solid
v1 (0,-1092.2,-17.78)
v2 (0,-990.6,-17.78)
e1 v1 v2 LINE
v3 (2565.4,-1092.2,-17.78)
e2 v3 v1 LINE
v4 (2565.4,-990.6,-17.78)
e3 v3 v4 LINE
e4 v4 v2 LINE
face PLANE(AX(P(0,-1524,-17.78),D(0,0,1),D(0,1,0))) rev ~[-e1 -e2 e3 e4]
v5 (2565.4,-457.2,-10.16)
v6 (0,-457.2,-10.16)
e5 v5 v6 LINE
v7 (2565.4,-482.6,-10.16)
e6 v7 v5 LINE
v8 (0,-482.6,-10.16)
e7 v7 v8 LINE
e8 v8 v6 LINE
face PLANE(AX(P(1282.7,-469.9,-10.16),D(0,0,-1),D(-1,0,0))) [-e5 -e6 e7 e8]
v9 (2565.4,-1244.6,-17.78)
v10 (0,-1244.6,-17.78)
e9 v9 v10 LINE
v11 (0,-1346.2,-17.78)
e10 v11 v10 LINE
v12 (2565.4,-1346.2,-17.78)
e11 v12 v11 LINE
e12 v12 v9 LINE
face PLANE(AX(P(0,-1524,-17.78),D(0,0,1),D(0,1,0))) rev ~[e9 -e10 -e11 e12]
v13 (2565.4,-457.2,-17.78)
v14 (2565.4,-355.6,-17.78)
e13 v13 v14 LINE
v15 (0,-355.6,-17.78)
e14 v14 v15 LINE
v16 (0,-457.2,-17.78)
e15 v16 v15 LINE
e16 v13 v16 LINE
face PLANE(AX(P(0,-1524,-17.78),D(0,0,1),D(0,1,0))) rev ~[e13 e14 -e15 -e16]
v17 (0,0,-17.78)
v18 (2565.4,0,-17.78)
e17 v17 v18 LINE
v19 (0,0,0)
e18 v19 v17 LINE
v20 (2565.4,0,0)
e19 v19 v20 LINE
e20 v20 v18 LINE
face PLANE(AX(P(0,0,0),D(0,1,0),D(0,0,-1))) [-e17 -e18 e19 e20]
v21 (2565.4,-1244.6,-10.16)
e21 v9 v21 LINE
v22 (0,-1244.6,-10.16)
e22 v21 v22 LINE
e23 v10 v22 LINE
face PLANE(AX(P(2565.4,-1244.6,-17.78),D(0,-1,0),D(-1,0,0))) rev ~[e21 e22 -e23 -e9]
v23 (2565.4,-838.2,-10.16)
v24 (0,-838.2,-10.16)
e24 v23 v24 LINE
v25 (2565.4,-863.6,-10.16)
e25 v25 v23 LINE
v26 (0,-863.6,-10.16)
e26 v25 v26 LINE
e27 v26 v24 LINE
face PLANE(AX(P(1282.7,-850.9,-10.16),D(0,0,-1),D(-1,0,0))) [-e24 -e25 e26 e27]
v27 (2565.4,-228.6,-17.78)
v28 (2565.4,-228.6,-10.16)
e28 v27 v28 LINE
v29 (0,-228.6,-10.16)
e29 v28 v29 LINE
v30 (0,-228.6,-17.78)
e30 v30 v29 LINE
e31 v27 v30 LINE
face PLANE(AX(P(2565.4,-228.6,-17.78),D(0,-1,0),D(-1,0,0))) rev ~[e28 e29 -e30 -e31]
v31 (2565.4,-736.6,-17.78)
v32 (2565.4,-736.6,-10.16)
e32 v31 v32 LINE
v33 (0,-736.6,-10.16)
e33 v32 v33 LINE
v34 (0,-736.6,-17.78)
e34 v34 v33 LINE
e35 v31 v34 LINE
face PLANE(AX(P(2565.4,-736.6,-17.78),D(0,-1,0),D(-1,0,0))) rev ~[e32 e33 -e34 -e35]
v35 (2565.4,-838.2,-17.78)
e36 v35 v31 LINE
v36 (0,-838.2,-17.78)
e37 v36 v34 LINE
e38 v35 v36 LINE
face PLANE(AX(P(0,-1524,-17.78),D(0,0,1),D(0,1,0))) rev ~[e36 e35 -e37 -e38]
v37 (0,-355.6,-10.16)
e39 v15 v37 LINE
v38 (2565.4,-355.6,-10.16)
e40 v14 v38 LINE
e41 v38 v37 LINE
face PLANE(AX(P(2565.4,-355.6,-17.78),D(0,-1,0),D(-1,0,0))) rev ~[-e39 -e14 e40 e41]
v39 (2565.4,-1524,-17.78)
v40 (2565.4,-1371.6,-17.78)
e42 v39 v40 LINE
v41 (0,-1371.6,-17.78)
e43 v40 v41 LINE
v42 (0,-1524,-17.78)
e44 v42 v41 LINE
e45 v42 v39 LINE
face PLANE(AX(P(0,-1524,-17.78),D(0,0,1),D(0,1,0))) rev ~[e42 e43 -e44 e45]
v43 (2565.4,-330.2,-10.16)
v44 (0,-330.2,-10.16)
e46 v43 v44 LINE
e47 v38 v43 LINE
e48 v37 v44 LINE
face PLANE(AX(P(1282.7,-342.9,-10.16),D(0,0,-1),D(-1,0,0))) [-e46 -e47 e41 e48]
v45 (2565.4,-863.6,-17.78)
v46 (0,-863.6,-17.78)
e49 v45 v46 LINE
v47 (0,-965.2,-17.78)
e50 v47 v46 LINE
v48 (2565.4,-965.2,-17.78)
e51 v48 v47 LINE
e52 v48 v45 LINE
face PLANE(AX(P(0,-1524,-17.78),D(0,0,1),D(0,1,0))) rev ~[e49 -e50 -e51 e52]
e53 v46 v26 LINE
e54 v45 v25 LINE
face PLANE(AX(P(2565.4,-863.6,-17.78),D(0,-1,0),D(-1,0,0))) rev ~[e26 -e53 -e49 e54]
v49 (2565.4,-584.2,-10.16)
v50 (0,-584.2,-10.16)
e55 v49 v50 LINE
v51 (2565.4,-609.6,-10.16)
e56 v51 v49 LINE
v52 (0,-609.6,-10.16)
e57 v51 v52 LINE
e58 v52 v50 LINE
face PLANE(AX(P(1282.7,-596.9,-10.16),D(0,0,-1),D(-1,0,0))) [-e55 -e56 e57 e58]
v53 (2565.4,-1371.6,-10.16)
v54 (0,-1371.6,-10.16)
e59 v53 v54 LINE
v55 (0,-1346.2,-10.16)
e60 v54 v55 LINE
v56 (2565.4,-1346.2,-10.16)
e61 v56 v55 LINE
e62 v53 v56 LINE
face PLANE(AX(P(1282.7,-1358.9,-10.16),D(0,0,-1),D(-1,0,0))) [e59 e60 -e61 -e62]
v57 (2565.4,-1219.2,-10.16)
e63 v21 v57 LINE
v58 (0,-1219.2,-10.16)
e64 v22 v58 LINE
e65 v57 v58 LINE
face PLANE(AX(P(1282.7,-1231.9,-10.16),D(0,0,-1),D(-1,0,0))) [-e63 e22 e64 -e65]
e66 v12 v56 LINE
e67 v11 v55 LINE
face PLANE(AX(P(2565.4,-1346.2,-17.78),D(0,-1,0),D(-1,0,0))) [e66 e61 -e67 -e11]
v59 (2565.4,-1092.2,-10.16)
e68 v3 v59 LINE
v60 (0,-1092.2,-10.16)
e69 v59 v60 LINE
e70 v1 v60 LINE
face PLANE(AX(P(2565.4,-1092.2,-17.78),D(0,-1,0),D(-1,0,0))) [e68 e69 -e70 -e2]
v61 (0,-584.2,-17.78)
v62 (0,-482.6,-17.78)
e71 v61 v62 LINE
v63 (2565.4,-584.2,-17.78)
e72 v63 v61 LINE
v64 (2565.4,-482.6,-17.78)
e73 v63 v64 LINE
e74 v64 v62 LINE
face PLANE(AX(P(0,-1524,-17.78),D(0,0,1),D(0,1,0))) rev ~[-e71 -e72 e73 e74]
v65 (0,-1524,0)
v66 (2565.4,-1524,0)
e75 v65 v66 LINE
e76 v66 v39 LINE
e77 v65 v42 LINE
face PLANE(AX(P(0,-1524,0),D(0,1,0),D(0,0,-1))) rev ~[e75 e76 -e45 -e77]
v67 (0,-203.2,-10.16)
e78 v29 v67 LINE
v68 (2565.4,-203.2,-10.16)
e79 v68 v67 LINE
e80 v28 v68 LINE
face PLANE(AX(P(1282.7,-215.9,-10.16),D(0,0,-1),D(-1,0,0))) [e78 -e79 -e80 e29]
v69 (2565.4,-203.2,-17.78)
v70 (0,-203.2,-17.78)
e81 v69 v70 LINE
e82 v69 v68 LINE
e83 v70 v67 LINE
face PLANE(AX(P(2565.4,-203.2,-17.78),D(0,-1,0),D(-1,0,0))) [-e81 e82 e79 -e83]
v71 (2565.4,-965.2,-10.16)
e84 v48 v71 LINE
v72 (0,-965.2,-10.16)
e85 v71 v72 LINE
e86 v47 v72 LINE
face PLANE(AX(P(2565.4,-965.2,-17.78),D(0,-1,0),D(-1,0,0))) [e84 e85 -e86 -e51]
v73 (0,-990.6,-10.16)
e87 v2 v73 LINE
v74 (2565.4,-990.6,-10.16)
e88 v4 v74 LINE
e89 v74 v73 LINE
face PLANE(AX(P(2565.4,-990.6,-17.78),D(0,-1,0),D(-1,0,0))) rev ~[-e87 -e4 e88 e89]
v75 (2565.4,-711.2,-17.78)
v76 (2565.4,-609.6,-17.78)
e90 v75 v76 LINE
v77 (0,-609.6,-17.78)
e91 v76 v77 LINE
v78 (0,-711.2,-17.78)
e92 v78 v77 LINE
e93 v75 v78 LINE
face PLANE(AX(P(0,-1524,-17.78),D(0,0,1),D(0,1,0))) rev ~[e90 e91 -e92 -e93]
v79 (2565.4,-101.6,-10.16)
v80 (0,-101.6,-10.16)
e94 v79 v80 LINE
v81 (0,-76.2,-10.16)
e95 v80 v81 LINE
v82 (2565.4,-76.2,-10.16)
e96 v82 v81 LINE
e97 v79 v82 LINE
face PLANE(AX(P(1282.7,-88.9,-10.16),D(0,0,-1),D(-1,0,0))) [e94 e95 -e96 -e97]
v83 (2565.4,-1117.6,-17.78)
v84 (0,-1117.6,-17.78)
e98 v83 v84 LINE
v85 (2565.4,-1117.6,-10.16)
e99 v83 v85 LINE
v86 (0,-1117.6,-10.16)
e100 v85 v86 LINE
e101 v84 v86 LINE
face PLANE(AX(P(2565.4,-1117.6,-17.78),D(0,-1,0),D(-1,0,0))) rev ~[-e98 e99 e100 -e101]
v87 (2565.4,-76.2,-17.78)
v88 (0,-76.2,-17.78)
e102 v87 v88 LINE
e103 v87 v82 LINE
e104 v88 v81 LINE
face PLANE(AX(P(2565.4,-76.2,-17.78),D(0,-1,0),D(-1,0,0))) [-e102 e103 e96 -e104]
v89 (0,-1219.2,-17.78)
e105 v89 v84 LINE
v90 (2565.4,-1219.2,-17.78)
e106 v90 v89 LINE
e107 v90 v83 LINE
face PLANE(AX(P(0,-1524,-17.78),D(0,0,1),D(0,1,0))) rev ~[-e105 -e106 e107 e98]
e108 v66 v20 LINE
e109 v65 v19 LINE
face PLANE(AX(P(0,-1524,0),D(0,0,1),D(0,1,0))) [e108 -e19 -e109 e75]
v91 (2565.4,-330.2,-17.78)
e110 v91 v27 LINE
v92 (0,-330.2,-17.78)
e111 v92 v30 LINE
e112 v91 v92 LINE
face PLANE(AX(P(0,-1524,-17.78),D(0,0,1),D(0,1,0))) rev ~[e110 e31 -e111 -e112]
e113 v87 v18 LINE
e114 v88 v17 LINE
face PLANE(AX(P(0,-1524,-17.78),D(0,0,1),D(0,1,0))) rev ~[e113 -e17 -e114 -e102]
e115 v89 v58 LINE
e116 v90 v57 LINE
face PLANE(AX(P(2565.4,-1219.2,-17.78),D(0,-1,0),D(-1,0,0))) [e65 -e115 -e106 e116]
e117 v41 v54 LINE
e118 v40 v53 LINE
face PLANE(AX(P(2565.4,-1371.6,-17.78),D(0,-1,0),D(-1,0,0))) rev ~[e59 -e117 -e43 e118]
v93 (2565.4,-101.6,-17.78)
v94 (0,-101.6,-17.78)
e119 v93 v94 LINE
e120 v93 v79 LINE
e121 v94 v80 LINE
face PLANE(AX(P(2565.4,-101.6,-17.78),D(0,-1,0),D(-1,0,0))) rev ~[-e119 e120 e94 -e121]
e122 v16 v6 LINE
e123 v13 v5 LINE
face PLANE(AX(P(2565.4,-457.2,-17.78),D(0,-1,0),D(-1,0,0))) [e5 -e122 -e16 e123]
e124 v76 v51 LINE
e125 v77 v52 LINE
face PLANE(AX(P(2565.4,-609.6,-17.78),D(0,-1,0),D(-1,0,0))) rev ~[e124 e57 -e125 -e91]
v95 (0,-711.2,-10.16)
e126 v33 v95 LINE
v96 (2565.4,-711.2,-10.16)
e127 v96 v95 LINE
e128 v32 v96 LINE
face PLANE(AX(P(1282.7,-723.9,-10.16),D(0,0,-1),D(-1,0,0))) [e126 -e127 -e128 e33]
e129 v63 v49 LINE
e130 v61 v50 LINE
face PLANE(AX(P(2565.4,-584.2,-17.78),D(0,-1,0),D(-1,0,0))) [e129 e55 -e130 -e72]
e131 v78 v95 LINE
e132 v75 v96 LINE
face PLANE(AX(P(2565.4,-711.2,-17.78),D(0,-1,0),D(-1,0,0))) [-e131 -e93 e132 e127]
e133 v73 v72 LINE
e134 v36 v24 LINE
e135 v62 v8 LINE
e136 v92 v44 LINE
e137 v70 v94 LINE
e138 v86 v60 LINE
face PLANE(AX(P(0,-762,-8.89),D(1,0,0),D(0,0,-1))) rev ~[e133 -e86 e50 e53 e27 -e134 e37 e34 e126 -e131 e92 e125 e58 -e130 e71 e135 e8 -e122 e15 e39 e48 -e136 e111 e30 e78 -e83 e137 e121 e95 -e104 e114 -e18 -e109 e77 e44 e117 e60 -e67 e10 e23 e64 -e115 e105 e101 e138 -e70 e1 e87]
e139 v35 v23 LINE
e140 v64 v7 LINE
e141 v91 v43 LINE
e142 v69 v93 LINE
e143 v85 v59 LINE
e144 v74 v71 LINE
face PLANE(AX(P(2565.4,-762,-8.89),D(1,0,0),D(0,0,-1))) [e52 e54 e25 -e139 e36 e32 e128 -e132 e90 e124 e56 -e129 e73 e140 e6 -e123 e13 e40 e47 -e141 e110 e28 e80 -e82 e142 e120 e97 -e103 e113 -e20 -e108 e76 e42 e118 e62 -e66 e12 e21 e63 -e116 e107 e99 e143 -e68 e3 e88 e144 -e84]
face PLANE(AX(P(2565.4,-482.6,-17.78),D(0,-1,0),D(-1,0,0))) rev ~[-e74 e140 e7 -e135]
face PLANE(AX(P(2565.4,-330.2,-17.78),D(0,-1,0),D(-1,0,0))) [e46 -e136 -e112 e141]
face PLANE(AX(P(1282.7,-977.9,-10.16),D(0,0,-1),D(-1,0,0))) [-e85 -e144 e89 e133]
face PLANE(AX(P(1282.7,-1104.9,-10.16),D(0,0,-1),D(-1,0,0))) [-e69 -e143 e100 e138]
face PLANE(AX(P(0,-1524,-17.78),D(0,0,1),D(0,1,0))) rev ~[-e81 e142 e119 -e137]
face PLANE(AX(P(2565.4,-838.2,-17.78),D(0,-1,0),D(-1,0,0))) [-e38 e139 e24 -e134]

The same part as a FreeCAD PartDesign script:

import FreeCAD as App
import Part
import Sketcher
from FreeCAD import Vector
Q = App.Units.Quantity

doc = App.newDocument("Part")
body = doc.addObject("PartDesign::Body", "Body")

# Sketch on YZ plane
sketch1 = doc.addObject("Sketcher::SketchObject", "Sketch")
body.addObject(sketch1)
sketch1.AttachmentSupport = (doc.YZ_Plane, [""])
sketch1.MapMode = "FlatFace"
sketch1.addGeometry([
    Part.LineSegment(Vector(0, 0, 0), Vector(-1524, 0, 0)),
    Part.LineSegment(Vector(-1524, 0, 0), Vector(-1524, -18, 0)),
    Part.LineSegment(Vector(-1524, -18, 0), Vector(0, -18, 0)),
    Part.LineSegment(Vector(0, -18, 0), Vector(0, 0, 0)),
], False)
sketch1.addConstraint([
    Sketcher.Constraint("Coincident", 0, 2, 1, 1),
    Sketcher.Constraint("Coincident", 1, 2, 2, 1),
    Sketcher.Constraint("Coincident", 2, 2, 3, 1),
    Sketcher.Constraint("Coincident", 3, 2, 0, 1),
    Sketcher.Constraint("Horizontal", 0),
    Sketcher.Constraint("Vertical", 1),
    Sketcher.Constraint("Horizontal", 2),
    Sketcher.Constraint("Vertical", 3),
    Sketcher.Constraint("Coincident", 3, 2, -1, 1),
    Sketcher.Constraint("DistanceX", 0, 2, 0, 1, Q("60 in")),
    Sketcher.Constraint("DistanceY", 1, 2, 1, 1, Q("0.7 in")),
])
pad1 = doc.addObject("PartDesign::Pad", "Pad")
body.addObject(pad1)
pad1.Profile = sketch1
pad1.Length = Q("101 in")

# Sketch on XY plane
sketch2 = doc.addObject("Sketcher::SketchObject", "Sketch001")
body.addObject(sketch2)
sketch2.AttachmentSupport = (doc.XY_Plane, [""])
sketch2.MapMode = "FlatFace"
sketch2.AttachmentOffset = App.Placement(Vector(0, 0, -0.7 * 25.4), App.Rotation())
sketch2.addGeometry([
    Part.LineSegment(Vector(2565, -76, 0), Vector(2565, -102, 0)),  # 0
    Part.LineSegment(Vector(2565, -102, 0), Vector(0, -102, 0)),  # 1
    Part.LineSegment(Vector(0, -102, 0), Vector(0, -76, 0)),  # 2
    Part.LineSegment(Vector(0, -76, 0), Vector(2565, -76, 0)),  # 3
    Part.LineSegment(Vector(2565, -203, 0), Vector(2565, -229, 0)),  # 4
    Part.LineSegment(Vector(2565, -229, 0), Vector(0, -229, 0)),  # 5
    Part.LineSegment(Vector(0, -229, 0), Vector(0, -203, 0)),  # 6
    Part.LineSegment(Vector(0, -203, 0), Vector(2565, -203, 0)),  # 7
    Part.LineSegment(Vector(2565, -330, 0), Vector(2565, -356, 0)),  # 8
    Part.LineSegment(Vector(2565, -356, 0), Vector(0, -356, 0)),  # 9
    Part.LineSegment(Vector(0, -356, 0), Vector(0, -330, 0)),  # 10
    Part.LineSegment(Vector(0, -330, 0), Vector(2565, -330, 0)),  # 11
    Part.LineSegment(Vector(2565, -457, 0), Vector(2565, -483, 0)),  # 12
    Part.LineSegment(Vector(2565, -483, 0), Vector(0, -483, 0)),  # 13
    Part.LineSegment(Vector(0, -483, 0), Vector(0, -457, 0)),  # 14
    Part.LineSegment(Vector(0, -457, 0), Vector(2565, -457, 0)),  # 15
    Part.LineSegment(Vector(2565, -584, 0), Vector(2565, -610, 0)),  # 16
    Part.LineSegment(Vector(2565, -610, 0), Vector(0, -610, 0)),  # 17
    Part.LineSegment(Vector(0, -610, 0), Vector(0, -584, 0)),  # 18
    Part.LineSegment(Vector(0, -584, 0), Vector(2565, -584, 0)),  # 19
    Part.LineSegment(Vector(2565, -711, 0), Vector(2565, -737, 0)),  # 20
    Part.LineSegment(Vector(2565, -737, 0), Vector(0, -737, 0)),  # 21
    Part.LineSegment(Vector(0, -737, 0), Vector(0, -711, 0)),  # 22
    Part.LineSegment(Vector(0, -711, 0), Vector(2565, -711, 0)),  # 23
    Part.LineSegment(Vector(2565, -838, 0), Vector(2565, -864, 0)),  # 24
    Part.LineSegment(Vector(2565, -864, 0), Vector(0, -864, 0)),  # 25
    Part.LineSegment(Vector(0, -864, 0), Vector(0, -838, 0)),  # 26
    Part.LineSegment(Vector(0, -838, 0), Vector(2565, -838, 0)),  # 27
    Part.LineSegment(Vector(2565, -965, 0), Vector(2565, -991, 0)),  # 28
    Part.LineSegment(Vector(2565, -991, 0), Vector(0, -991, 0)),  # 29
    Part.LineSegment(Vector(0, -991, 0), Vector(0, -965, 0)),  # 30
    Part.LineSegment(Vector(0, -965, 0), Vector(2565, -965, 0)),  # 31
    Part.LineSegment(Vector(2565, -1092, 0), Vector(2565, -1118, 0)),  # 32
    Part.LineSegment(Vector(2565, -1118, 0), Vector(0, -1118, 0)),  # 33
    Part.LineSegment(Vector(0, -1118, 0), Vector(0, -1092, 0)),  # 34
    Part.LineSegment(Vector(0, -1092, 0), Vector(2565, -1092, 0)),  # 35
    Part.LineSegment(Vector(2565, -1219, 0), Vector(2565, -1245, 0)),  # 36
    Part.LineSegment(Vector(2565, -1245, 0), Vector(0, -1245, 0)),  # 37
    Part.LineSegment(Vector(0, -1245, 0), Vector(0, -1219, 0)),  # 38
    Part.LineSegment(Vector(0, -1219, 0), Vector(2565, -1219, 0)),  # 39
    Part.LineSegment(Vector(2565, -1346, 0), Vector(2565, -1372, 0)),  # 40
    Part.LineSegment(Vector(2565, -1372, 0), Vector(0, -1372, 0)),  # 41
    Part.LineSegment(Vector(0, -1372, 0), Vector(0, -1346, 0)),  # 42
    Part.LineSegment(Vector(0, -1346, 0), Vector(2565, -1346, 0)),  # 43
], False)
sketch2.addConstraint([
    Sketcher.Constraint("Coincident", 0, 2, 1, 1),
    Sketcher.Constraint("Coincident", 1, 2, 2, 1),
    Sketcher.Constraint("Coincident", 2, 2, 3, 1),
    Sketcher.Constraint("Coincident", 3, 2, 0, 1),
    Sketcher.Constraint("Coincident", 4, 2, 5, 1),
    Sketcher.Constraint("Coincident", 5, 2, 6, 1),
    Sketcher.Constraint("Coincident", 6, 2, 7, 1),
    Sketcher.Constraint("Coincident", 7, 2, 4, 1),
    Sketcher.Constraint("Coincident", 8, 2, 9, 1),
    Sketcher.Constraint("Coincident", 9, 2, 10, 1),
    Sketcher.Constraint("Coincident", 10, 2, 11, 1),
    Sketcher.Constraint("Coincident", 11, 2, 8, 1),
    Sketcher.Constraint("Coincident", 12, 2, 13, 1),
    Sketcher.Constraint("Coincident", 13, 2, 14, 1),
    Sketcher.Constraint("Coincident", 14, 2, 15, 1),
    Sketcher.Constraint("Coincident", 15, 2, 12, 1),
    Sketcher.Constraint("Coincident", 16, 2, 17, 1),
    Sketcher.Constraint("Coincident", 17, 2, 18, 1),
    Sketcher.Constraint("Coincident", 18, 2, 19, 1),
    Sketcher.Constraint("Coincident", 19, 2, 16, 1),
    Sketcher.Constraint("Coincident", 20, 2, 21, 1),
    Sketcher.Constraint("Coincident", 21, 2, 22, 1),
    Sketcher.Constraint("Coincident", 22, 2, 23, 1),
    Sketcher.Constraint("Coincident", 23, 2, 20, 1),
    Sketcher.Constraint("Coincident", 24, 2, 25, 1),
    Sketcher.Constraint("Coincident", 25, 2, 26, 1),
    Sketcher.Constraint("Coincident", 26, 2, 27, 1),
    Sketcher.Constraint("Coincident", 27, 2, 24, 1),
    Sketcher.Constraint("Coincident", 28, 2, 29, 1),
    Sketcher.Constraint("Coincident", 29, 2, 30, 1),
    Sketcher.Constraint("Coincident", 30, 2, 31, 1),
    Sketcher.Constraint("Coincident", 31, 2, 28, 1),
    Sketcher.Constraint("Coincident", 32, 2, 33, 1),
    Sketcher.Constraint("Coincident", 33, 2, 34, 1),
    Sketcher.Constraint("Coincident", 34, 2, 35, 1),
    Sketcher.Constraint("Coincident", 35, 2, 32, 1),
    Sketcher.Constraint("Coincident", 36, 2, 37, 1),
    Sketcher.Constraint("Coincident", 37, 2, 38, 1),
    Sketcher.Constraint("Coincident", 38, 2, 39, 1),
    Sketcher.Constraint("Coincident", 39, 2, 36, 1),
    Sketcher.Constraint("Coincident", 40, 2, 41, 1),
    Sketcher.Constraint("Coincident", 41, 2, 42, 1),
    Sketcher.Constraint("Coincident", 42, 2, 43, 1),
    Sketcher.Constraint("Coincident", 43, 2, 40, 1),
    Sketcher.Constraint("Vertical", 0),
    Sketcher.Constraint("Horizontal", 1),
    Sketcher.Constraint("Vertical", 2),
    Sketcher.Constraint("Horizontal", 3),
    Sketcher.Constraint("Vertical", 4),
    Sketcher.Constraint("Horizontal", 5),
    Sketcher.Constraint("Vertical", 6),
    Sketcher.Constraint("Horizontal", 7),
    Sketcher.Constraint("Vertical", 8),
    Sketcher.Constraint("Horizontal", 9),
    Sketcher.Constraint("Vertical", 10),
    Sketcher.Constraint("Horizontal", 11),
    Sketcher.Constraint("Vertical", 12),
    Sketcher.Constraint("Horizontal", 13),
    Sketcher.Constraint("Vertical", 14),
    Sketcher.Constraint("Horizontal", 15),
    Sketcher.Constraint("Vertical", 16),
    Sketcher.Constraint("Horizontal", 17),
    Sketcher.Constraint("Vertical", 18),
    Sketcher.Constraint("Horizontal", 19),
    Sketcher.Constraint("Vertical", 20),
    Sketcher.Constraint("Horizontal", 21),
    Sketcher.Constraint("Vertical", 22),
    Sketcher.Constraint("Horizontal", 23),
    Sketcher.Constraint("Vertical", 24),
    Sketcher.Constraint("Horizontal", 25),
    Sketcher.Constraint("Vertical", 26),
    Sketcher.Constraint("Horizontal", 27),
    Sketcher.Constraint("Vertical", 28),
    Sketcher.Constraint("Horizontal", 29),
    Sketcher.Constraint("Vertical", 30),
    Sketcher.Constraint("Horizontal", 31),
    Sketcher.Constraint("Vertical", 32),
    Sketcher.Constraint("Horizontal", 33),
    Sketcher.Constraint("Vertical", 34),
    Sketcher.Constraint("Horizontal", 35),
    Sketcher.Constraint("Vertical", 36),
    Sketcher.Constraint("Horizontal", 37),
    Sketcher.Constraint("Vertical", 38),
    Sketcher.Constraint("Horizontal", 39),
    Sketcher.Constraint("Vertical", 40),
    Sketcher.Constraint("Horizontal", 41),
    Sketcher.Constraint("Vertical", 42),
    Sketcher.Constraint("Horizontal", 43),
    Sketcher.Constraint("PointOnObject", 1, 2, -2),
    Sketcher.Constraint("PointOnObject", 5, 2, -2),
    Sketcher.Constraint("PointOnObject", 9, 2, -2),
    Sketcher.Constraint("PointOnObject", 13, 2, -2),
    Sketcher.Constraint("PointOnObject", 17, 2, -2),
    Sketcher.Constraint("PointOnObject", 21, 2, -2),
    Sketcher.Constraint("PointOnObject", 25, 2, -2),
    Sketcher.Constraint("PointOnObject", 29, 2, -2),
    Sketcher.Constraint("PointOnObject", 33, 2, -2),
    Sketcher.Constraint("PointOnObject", 37, 2, -2),
    Sketcher.Constraint("PointOnObject", 41, 2, -2),
    Sketcher.Constraint("Vertical", 3, 2, 4, 2),
    Sketcher.Constraint("Vertical", 7, 2, 8, 2),
    Sketcher.Constraint("Vertical", 11, 2, 12, 2),
    Sketcher.Constraint("Vertical", 15, 2, 16, 2),
    Sketcher.Constraint("Vertical", 19, 2, 20, 2),
    Sketcher.Constraint("Vertical", 23, 2, 24, 2),
    Sketcher.Constraint("Vertical", 27, 2, 28, 2),
    Sketcher.Constraint("Vertical", 31, 2, 32, 2),
    Sketcher.Constraint("Vertical", 35, 2, 36, 2),
    Sketcher.Constraint("Vertical", 39, 2, 40, 2),
    Sketcher.Constraint("Equal", 2, 4),
    Sketcher.Constraint("Equal", 6, 8),
    Sketcher.Constraint("Equal", 10, 12),
    Sketcher.Constraint("Equal", 14, 16),
    Sketcher.Constraint("Equal", 18, 20),
    Sketcher.Constraint("Equal", 22, 24),
    Sketcher.Constraint("Equal", 26, 28),
    Sketcher.Constraint("Equal", 30, 32),
    Sketcher.Constraint("Equal", 34, 36),
    Sketcher.Constraint("Equal", 38, 40),
    Sketcher.Constraint("DistanceX", 1, 2, 1, 1, Q("101 in")),
    Sketcher.Constraint("DistanceY", 0, 2, 0, 1, Q("1 in")),
    Sketcher.Constraint("DistanceY", 0, 2, -1, 1, Q("4 in")),
    Sketcher.Constraint("DistanceY", 4, 2, -1, 1, Q("9 in")),
    Sketcher.Constraint("DistanceY", 8, 2, -1, 1, Q("14 in")),
    Sketcher.Constraint("DistanceY", 12, 2, -1, 1, Q("19 in")),
    Sketcher.Constraint("DistanceY", 16, 2, -1, 1, Q("24 in")),
    Sketcher.Constraint("DistanceY", 20, 2, -1, 1, Q("29 in")),
    Sketcher.Constraint("DistanceY", 24, 2, -1, 1, Q("34 in")),
    Sketcher.Constraint("DistanceY", 28, 2, -1, 1, Q("39 in")),
    Sketcher.Constraint("DistanceY", 32, 2, -1, 1, Q("44 in")),
    Sketcher.Constraint("DistanceY", 36, 2, -1, 1, Q("49 in")),
    Sketcher.Constraint("DistanceY", 40, 2, -1, 1, Q("54 in")),
])
pocket1 = doc.addObject("PartDesign::Pocket", "Pocket")
body.addObject(pocket1)
pocket1.Profile = sketch2
pocket1.Length = Q("0.3 in")
pocket1.Reversed = True

doc.recompute()
